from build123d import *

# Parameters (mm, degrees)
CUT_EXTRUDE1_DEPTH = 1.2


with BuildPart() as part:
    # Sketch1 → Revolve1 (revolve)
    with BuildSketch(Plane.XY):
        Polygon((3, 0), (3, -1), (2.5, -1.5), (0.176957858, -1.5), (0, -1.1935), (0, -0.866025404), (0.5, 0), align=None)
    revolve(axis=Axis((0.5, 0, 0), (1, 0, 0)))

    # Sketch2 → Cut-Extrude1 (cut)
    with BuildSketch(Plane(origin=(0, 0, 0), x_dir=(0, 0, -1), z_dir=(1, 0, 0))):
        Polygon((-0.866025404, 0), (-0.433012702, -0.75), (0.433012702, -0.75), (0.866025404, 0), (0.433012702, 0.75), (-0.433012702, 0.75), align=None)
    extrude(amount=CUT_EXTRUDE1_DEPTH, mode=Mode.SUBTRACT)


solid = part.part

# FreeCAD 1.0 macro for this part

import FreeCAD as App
import Part
import Sketcher

V = App.Vector
Q = App.Units.Quantity

doc = App.newDocument("Part")
body = doc.addObject("PartDesign::Body", "Body")

sketch1 = doc.addObject("Sketcher::SketchObject", "Sketch")
body.addObject(sketch1)
sketch1.AttachmentSupport = (doc.XY_Plane, [""])
sketch1.MapMode = "FlatFace"
sketch1.addGeometry([
    Part.LineSegment(V(3, -1, 0), V(3, 0, 0)),
    Part.LineSegment(V(3, 0, 0), V(0.5, 0, 0)),
    Part.LineSegment(V(0.5, 0, 0), V(0, -0.87, 0)),
    Part.LineSegment(V(0, -0.87, 0), V(0, -1.19, 0)),
    Part.LineSegment(V(0, -1.19, 0), V(0.18, -1.5, 0)),
    Part.LineSegment(V(0.18, -1.5, 0), V(2.5, -1.5, 0)),
    Part.LineSegment(V(2.5, -1.5, 0), V(3, -1, 0)),
], False)
sketch1.addConstraint([
    Sketcher.Constraint("Coincident", 0, 2, 1, 1),
    Sketcher.Constraint("Coincident", 1, 2, 2, 1),
    Sketcher.Constraint("Coincident", 2, 2, 3, 1),
    Sketcher.Constraint("Coincident", 3, 2, 4, 1),
    Sketcher.Constraint("Coincident", 4, 2, 5, 1),
    Sketcher.Constraint("Coincident", 5, 2, 6, 1),
    Sketcher.Constraint("Coincident", 6, 2, 0, 1),
    Sketcher.Constraint("Vertical", 0),
    Sketcher.Constraint("Horizontal", 1),
    Sketcher.Constraint("Vertical", 3),
    Sketcher.Constraint("Horizontal", 5),
    Sketcher.Constraint("PointOnObject", 0, 2, -1),
    Sketcher.Constraint("PointOnObject", 2, 2, -2),
    Sketcher.Constraint("DistanceY", 0, 1, 0, 2, Q("1 mm")),
    Sketcher.Constraint("Angle", 2, Q("-120 deg")),
    Sketcher.Constraint("Angle", 4, Q("-60 deg")),
    Sketcher.Constraint("Angle", 6, Q("45 deg")),
    Sketcher.Constraint("Distance", 2, Q("1 mm")),
    Sketcher.Constraint("DistanceX", 1, 2, 1, 1, Q("2.5 mm")),
    Sketcher.Constraint("DistanceX", 1, 2, 5, 2, Q("2 mm")),
    Sketcher.Constraint("DistanceY", 3, 2, -1, 1, Q("1.1935 mm")),
])
revolution = doc.addObject("PartDesign::Revolution", "Revolution")
body.addObject(revolution)
revolution.Profile = sketch1
revolution.ReferenceAxis = (sketch1, ["H_Axis"])
revolution.Angle = 360

sketch2 = doc.addObject("Sketcher::SketchObject", "Sketch001")
body.addObject(sketch2)
sketch2.AttachmentSupport = (doc.YZ_Plane, [""])
sketch2.MapMode = "FlatFace"
sketch2.addGeometry([
    Part.LineSegment(V(0, 0.9, 0), V(-0.8, 0.4, 0)),
    Part.LineSegment(V(-0.8, 0.4, 0), V(-0.8, -0.4, 0)),
    Part.LineSegment(V(-0.8, -0.4, 0), V(0, -0.9, 0)),
    Part.LineSegment(V(0, -0.9, 0), V(0.8, -0.4, 0)),
    Part.LineSegment(V(0.8, -0.4, 0), V(0.8, 0.4, 0)),
    Part.LineSegment(V(0.8, 0.4, 0), V(0, 0.9, 0)),
], False)
sketch2.addConstraint([
    Sketcher.Constraint("Coincident", 0, 2, 1, 1),
    Sketcher.Constraint("Coincident", 1, 2, 2, 1),
    Sketcher.Constraint("Coincident", 2, 2, 3, 1),
    Sketcher.Constraint("Coincident", 3, 2, 4, 1),
    Sketcher.Constraint("Coincident", 4, 2, 5, 1),
    Sketcher.Constraint("Coincident", 5, 2, 0, 1),
    Sketcher.Constraint("Vertical", 1),
    Sketcher.Constraint("Vertical", 4),
    Sketcher.Constraint("Symmetric", 0, 2, 3, 2, -1, 1),
    Sketcher.Constraint("Symmetric", 2, 2, 5, 2, -1, 1),
    Sketcher.Constraint("PointOnObject", 2, 2, -2),
    Sketcher.Constraint("Parallel", 2, 5),
    Sketcher.Constraint("Horizontal", 1, 2, 3, 2),
    Sketcher.Constraint("Angle", 0, Q("-150 deg")),
    Sketcher.Constraint("DistanceX", 1, 2, 3, 2, Q("1.5 mm")),
    Sketcher.Constraint("DistanceY", 1, 2, 1, 1, Q("0.866025 mm")),
])
pocket1 = doc.addObject("PartDesign::Pocket", "Pocket")
body.addObject(pocket1)
pocket1.Profile = sketch2
pocket1.Length = 1.2
pocket1.Reversed = True

doc.recompute()
